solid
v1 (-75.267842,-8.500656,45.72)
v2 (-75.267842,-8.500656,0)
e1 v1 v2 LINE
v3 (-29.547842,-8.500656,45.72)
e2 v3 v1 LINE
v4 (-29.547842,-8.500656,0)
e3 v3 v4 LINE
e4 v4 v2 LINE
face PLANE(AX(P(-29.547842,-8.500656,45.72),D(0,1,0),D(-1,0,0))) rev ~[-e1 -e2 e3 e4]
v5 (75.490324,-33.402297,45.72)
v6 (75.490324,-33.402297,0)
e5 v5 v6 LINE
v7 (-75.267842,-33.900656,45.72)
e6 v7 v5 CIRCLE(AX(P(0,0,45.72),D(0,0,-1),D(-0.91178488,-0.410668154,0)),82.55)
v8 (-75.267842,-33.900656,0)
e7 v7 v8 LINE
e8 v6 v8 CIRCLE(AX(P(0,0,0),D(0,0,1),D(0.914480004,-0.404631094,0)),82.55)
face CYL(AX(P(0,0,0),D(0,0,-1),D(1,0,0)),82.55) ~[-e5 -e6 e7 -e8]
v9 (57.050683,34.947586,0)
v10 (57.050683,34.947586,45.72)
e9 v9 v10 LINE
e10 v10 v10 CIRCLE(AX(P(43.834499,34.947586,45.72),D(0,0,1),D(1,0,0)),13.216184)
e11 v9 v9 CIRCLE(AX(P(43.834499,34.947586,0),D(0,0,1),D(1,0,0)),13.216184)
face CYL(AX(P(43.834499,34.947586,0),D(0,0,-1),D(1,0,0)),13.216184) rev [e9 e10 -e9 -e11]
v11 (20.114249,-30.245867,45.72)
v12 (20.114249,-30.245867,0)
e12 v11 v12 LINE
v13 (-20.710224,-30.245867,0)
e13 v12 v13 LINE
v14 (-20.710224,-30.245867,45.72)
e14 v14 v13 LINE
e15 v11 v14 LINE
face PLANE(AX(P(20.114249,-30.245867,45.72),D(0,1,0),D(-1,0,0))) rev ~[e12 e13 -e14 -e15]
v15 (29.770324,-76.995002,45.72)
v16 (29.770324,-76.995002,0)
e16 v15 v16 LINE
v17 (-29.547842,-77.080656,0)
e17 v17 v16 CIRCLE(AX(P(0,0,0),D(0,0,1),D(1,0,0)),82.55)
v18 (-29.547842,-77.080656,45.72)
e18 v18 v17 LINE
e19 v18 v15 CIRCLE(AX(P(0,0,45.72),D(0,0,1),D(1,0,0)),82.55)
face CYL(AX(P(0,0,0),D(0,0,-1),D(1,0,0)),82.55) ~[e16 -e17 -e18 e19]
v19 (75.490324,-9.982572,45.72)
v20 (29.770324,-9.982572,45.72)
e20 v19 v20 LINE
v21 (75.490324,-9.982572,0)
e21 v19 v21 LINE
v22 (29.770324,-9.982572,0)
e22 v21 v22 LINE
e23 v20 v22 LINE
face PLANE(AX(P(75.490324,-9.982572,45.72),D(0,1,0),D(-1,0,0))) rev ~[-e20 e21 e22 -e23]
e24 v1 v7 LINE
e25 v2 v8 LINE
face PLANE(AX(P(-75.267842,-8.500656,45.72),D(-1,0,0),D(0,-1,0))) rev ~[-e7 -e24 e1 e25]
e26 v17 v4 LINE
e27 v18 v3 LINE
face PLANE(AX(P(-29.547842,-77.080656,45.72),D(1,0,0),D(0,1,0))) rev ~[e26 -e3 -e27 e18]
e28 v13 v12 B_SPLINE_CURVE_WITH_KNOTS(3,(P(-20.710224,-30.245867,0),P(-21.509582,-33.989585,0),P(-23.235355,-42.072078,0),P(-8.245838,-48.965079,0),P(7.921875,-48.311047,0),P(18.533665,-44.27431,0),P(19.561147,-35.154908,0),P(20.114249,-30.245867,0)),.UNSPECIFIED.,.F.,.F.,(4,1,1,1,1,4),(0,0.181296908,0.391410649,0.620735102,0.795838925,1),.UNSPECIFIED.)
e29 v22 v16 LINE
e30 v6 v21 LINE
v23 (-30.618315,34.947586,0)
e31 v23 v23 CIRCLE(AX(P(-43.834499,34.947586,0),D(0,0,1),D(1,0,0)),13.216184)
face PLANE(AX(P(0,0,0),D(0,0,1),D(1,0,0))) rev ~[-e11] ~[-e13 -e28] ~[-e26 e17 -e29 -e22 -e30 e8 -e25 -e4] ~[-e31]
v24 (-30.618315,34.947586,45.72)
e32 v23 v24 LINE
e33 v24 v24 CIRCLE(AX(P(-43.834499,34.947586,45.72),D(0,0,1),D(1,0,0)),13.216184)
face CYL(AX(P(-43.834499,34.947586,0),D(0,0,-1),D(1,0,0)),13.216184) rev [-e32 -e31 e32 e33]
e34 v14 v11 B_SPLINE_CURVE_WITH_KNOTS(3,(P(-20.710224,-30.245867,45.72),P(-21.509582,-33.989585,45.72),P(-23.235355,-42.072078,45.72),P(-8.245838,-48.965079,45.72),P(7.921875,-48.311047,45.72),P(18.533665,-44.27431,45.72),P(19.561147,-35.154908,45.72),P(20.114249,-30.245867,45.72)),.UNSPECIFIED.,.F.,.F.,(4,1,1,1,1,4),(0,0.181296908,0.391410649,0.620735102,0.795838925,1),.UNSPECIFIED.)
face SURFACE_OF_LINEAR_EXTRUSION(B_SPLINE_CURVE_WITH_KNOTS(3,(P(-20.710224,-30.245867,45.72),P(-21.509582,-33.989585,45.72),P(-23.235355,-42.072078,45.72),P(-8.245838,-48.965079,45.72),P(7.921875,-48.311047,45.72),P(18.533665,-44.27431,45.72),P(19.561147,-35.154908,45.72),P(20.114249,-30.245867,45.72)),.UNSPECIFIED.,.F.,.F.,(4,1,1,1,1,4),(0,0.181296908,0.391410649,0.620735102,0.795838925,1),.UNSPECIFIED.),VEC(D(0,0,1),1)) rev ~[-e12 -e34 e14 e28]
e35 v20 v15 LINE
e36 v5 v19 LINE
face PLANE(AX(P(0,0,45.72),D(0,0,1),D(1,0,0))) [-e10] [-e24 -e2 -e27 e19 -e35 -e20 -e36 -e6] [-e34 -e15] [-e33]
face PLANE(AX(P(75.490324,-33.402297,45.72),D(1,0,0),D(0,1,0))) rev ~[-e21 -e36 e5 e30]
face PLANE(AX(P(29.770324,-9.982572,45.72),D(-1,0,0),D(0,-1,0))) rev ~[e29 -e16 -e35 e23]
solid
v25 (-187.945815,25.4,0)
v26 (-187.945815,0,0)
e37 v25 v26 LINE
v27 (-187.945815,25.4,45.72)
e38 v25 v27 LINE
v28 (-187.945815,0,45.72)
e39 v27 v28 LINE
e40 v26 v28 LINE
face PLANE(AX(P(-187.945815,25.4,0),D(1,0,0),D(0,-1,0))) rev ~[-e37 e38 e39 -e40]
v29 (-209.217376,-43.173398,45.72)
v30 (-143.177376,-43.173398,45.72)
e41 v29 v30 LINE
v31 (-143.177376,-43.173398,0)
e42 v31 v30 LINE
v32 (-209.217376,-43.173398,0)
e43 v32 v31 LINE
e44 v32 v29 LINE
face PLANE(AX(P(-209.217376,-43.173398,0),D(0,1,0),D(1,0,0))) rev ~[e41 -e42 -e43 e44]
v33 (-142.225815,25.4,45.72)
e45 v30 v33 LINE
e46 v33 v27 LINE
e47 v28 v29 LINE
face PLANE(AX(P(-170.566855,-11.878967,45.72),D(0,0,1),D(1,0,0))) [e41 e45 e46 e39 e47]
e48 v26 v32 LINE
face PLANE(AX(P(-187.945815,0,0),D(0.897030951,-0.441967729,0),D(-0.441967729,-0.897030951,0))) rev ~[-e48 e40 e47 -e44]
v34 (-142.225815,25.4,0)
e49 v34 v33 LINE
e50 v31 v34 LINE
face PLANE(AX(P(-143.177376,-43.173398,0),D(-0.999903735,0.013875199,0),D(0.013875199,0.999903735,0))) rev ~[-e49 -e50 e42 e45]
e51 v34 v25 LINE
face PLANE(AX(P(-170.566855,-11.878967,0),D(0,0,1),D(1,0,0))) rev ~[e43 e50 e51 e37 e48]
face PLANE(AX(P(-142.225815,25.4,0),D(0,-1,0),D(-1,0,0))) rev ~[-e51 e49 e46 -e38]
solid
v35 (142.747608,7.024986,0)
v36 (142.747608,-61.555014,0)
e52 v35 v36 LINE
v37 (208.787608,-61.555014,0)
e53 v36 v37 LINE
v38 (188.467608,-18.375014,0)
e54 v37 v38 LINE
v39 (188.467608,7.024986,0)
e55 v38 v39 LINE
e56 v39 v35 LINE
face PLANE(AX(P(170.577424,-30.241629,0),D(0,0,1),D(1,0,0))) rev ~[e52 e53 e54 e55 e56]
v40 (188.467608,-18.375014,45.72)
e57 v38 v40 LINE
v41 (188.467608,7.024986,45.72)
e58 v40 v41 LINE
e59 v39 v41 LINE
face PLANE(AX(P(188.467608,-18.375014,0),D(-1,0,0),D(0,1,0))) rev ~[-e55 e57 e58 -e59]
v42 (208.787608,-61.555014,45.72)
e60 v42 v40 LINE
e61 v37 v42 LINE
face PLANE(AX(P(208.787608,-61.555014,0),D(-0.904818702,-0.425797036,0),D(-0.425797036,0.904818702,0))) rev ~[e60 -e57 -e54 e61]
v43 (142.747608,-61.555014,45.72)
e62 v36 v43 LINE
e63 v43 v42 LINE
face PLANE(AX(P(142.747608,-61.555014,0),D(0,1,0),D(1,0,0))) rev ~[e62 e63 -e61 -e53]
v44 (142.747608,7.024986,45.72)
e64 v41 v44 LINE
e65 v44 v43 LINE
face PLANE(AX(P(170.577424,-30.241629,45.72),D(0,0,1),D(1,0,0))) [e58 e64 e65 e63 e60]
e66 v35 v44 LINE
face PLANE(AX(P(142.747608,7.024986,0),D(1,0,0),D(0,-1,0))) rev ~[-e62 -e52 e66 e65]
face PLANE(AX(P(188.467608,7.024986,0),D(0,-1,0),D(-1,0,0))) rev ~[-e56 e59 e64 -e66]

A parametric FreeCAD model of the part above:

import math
import FreeCAD as App
import Part
import Sketcher
from FreeCAD import Vector
Q = App.Units.Quantity

doc = App.newDocument("Part")
params = doc.addObject("Spreadsheet::Sheet", "Params")
for row, (alias, value) in enumerate([
    ("sketch1_diameter", "6.5 in"),
    ("pad1_length", "1.8 in"),
    ("pocket1_length", "1.8 in"),
    ("sketch3_height", "1 in"),
    ("sketch3_radius", "3.25 in"),
    ("sketch3_width", "1.8 in"),
    ("sketch3_height2", "2.7 in"),
    ("pocket2_length", "1.8 in"),
    ("sketch4_height", "1 in"),
    ("sketch4_width", "1.8 in"),
    ("sketch4_width2", "2.6 in"),
    ("sketch4_length", "2.7 in"),
    ("pad2_length", "1.8 in"),
    ("sketch5_height", "1 in"),
    ("sketch5_width", "1.8 in"),
    ("sketch5_width2", "2.6 in"),
    ("sketch5_height2", "2.7 in"),
    ("pad3_length", "1.8 in"),
], start=1):
    params.set(f"A{row}", alias)
    params.set(f"B{row}", "=" + value)
    params.setAlias(f"B{row}", alias)

body = doc.addObject("PartDesign::Body", "Body")

sketch1 = body.newObject("Sketcher::SketchObject", "Sketch")
sketch1.AttachmentSupport = (doc.getObject("XY_Plane"), [""])
sketch1.MapMode = "FlatFace"
sketch1.addGeometry([
    Part.Circle(Vector(0, 0, 0), Vector(0, 0, 1), 82.55),
    Part.Circle(Vector(-43.834499, 34.947586, 0), Vector(0, 0, 1), 13.216184),
    Part.Circle(Vector(43.834499, 34.947586, 0), Vector(0, 0, 1), 13.216184),
], False)
sketch1.addConstraint([
    Sketcher.Constraint("Coincident", 0, 3, -1, 1),
    Sketcher.Constraint("Equal", 1, 2),
    Sketcher.Constraint("Symmetric", 1, 3, 2, 3, -2),
    Sketcher.Constraint("Diameter", 0, Q("6.5 in")),
    Sketcher.Constraint("Diameter", 1, 26.432368),
    Sketcher.Constraint("DistanceX", 1, 3, -1, 1, 43.834499),
    Sketcher.Constraint("DistanceY", -1, 1, 1, 3, 34.947586),
])
sketch1.setExpression("Constraints[3]", "Params.sketch1_diameter")
pad1 = body.newObject("PartDesign::Pad", "Pad")
pad1.Profile = sketch1
pad1.setExpression("Length", "Params.pad1_length")

sketch2 = body.newObject("Sketcher::SketchObject", "Sketch001")
sketch2.AttachmentSupport = (doc.getObject("XY_Plane"), [""])
sketch2.MapMode = "FlatFace"
sketch2.AttachmentOffset = App.Placement(Vector(0, 0, 1.8 * 25.4), App.Rotation())
sketch2.addGeometry([
    Part.LineSegment(Vector(20.114249, -30.245867, 0), Vector(-20.710224, -30.245867, 0)),
    Part.BSplineCurve([Vector(-20.710224, -30.245867, 0), Vector(-21.509582, -33.989585, 0), Vector(-23.235355, -42.072078, 0), Vector(-8.245838, -48.965079, 0), Vector(7.921875, -48.311047, 0), Vector(18.533665, -44.27431, 0), Vector(19.561147, -35.154908, 0), Vector(20.114249, -30.245867, 0)], [4, 1, 1, 1, 1, 4], [0, 0.181296908, 0.391410649, 0.620735102, 0.795838925, 1], False, 3, [1, 1, 1, 1, 1, 1, 1, 1], False),
], False)
sketch2.addConstraint([
    Sketcher.Constraint("Block", 1),
    Sketcher.Constraint("Coincident", 0, 1, 1, 2),
    Sketcher.Constraint("Coincident", 1, 1, 0, 2),
])
pocket1 = body.newObject("PartDesign::Pocket", "Pocket")
pocket1.Profile = sketch2
pocket1.setExpression("Length", "Params.pocket1_length")

sketch3 = body.newObject("Sketcher::SketchObject", "Sketch002")
sketch3.AttachmentSupport = (doc.getObject("XY_Plane"), [""])
sketch3.MapMode = "FlatFace"
sketch3.AttachmentOffset = App.Placement(Vector(0, 0, 1.8 * 25.4), App.Rotation())
sketch3.addGeometry([
    Part.LineSegment(Vector(-75.267842, -8.500656, 0), Vector(-75.267842, -33.900656, 0)),
    Part.ArcOfCircle(Part.Circle(Vector(0, 0, 0), Vector(0, 0, 1), 82.55), math.radians(-155.753186), math.radians(-110.97366)),
    Part.LineSegment(Vector(-29.547842, -77.080656, 0), Vector(-29.547842, -8.500656, 0)),
    Part.LineSegment(Vector(-29.547842, -8.500656, 0), Vector(-75.267842, -8.500656, 0)),
    Part.ArcOfCircle(Part.Circle(Vector(0, 0, 0), Vector(0, 0, 1), 82.55), math.radians(-68.860872), math.radians(-23.868012)),
    Part.LineSegment(Vector(75.490324, -33.402297, 0), Vector(75.490324, -9.982572, 0)),
    Part.LineSegment(Vector(75.490324, -9.982572, 0), Vector(29.770324, -9.982572, 0)),
    Part.LineSegment(Vector(29.770324, -9.982572, 0), Vector(29.770324, -76.995002, 0)),
], False)
sketch3.addConstraint([
    Sketcher.Constraint("Coincident", 0, 2, 1, 1),
    Sketcher.Constraint("Coincident", 1, 2, 2, 1),
    Sketcher.Constraint("Coincident", 2, 2, 3, 1),
    Sketcher.Constraint("Coincident", 3, 2, 0, 1),
    Sketcher.Constraint("Coincident", 4, 2, 5, 1),
    Sketcher.Constraint("Coincident", 5, 2, 6, 1),
    Sketcher.Constraint("Coincident", 6, 2, 7, 1),
    Sketcher.Constraint("Coincident", 7, 2, 4, 1),
    Sketcher.Constraint("Vertical", 0),
    Sketcher.Constraint("Vertical", 2),
    Sketcher.Constraint("Horizontal", 3),
    Sketcher.Constraint("Vertical", 5),
    Sketcher.Constraint("Horizontal", 6),
    Sketcher.Constraint("Vertical", 7),
    Sketcher.Constraint("Coincident", 1, 3, -1, 1),
    Sketcher.Constraint("Coincident", 4, 3, -1, 1),
    Sketcher.Constraint("Equal", 1, 4),
    Sketcher.Constraint("Equal", 3, 6),
    Sketcher.Constraint("DistanceY", 0, 2, 0, 1, Q("1 in")),
    Sketcher.Constraint("Radius", 1, Q("3.25 in")),
    Sketcher.Constraint("DistanceX", 3, 2, 3, 1, Q("1.8 in")),
    Sketcher.Constraint("DistanceY", 2, 1, 2, 2, Q("2.7 in")),
    Sketcher.Constraint("DistanceY", 7, 2, 7, 1, 67.01243),
    Sketcher.Constraint("DistanceY", 7, 2, -1, 1, 76.995002),
])
sketch3.setExpression("Constraints[18]", "Params.sketch3_height")
sketch3.setExpression("Constraints[19]", "Params.sketch3_radius")
sketch3.setExpression("Constraints[20]", "Params.sketch3_width")
sketch3.setExpression("Constraints[21]", "Params.sketch3_height2")
pocket2 = body.newObject("PartDesign::Pocket", "Pocket001")
pocket2.Profile = sketch3
pocket2.setExpression("Length", "Params.pocket2_length")
body2 = doc.addObject("PartDesign::Body", "Body001")

sketch4 = body2.newObject("Sketcher::SketchObject", "Sketch003")
sketch4.AttachmentSupport = (doc.getObject("XY_Plane001"), [""])
sketch4.MapMode = "FlatFace"
sketch4.addGeometry([
    Part.LineSegment(Vector(-142.225815, 25.4, 0), Vector(-187.945815, 25.4, 0)),
    Part.LineSegment(Vector(-187.945815, 25.4, 0), Vector(-187.945815, 0, 0)),
    Part.LineSegment(Vector(-187.945815, 0, 0), Vector(-209.217376, -43.173398, 0)),
    Part.LineSegment(Vector(-209.217376, -43.173398, 0), Vector(-143.177376, -43.173398, 0)),
    Part.LineSegment(Vector(-143.177376, -43.173398, 0), Vector(-142.225815, 25.4, 0)),
], False)
sketch4.addConstraint([
    Sketcher.Constraint("Coincident", 0, 2, 1, 1),
    Sketcher.Constraint("Coincident", 1, 2, 2, 1),
    Sketcher.Constraint("Coincident", 2, 2, 3, 1),
    Sketcher.Constraint("Coincident", 3, 2, 4, 1),
    Sketcher.Constraint("Coincident", 4, 2, 0, 1),
    Sketcher.Constraint("Horizontal", 0),
    Sketcher.Constraint("Vertical", 1),
    Sketcher.Constraint("Horizontal", 3),
    Sketcher.Constraint("PointOnObject", 1, 2, -1),
    Sketcher.Constraint("DistanceY", 1, 2, 1, 1, Q("1 in")),
    Sketcher.Constraint("DistanceX", 0, 2, 0, 1, Q("1.8 in")),
    Sketcher.Constraint("DistanceX", 3, 1, 3, 2, Q("2.6 in")),
    Sketcher.Constraint("Distance", 4, Q("2.7 in")),
    Sketcher.Constraint("DistanceY", 2, 2, -1, 1, 43.173398),
    Sketcher.Constraint("DistanceX", 0, 2, -1, 1, 187.945815),
])
sketch4.setExpression("Constraints[9]", "Params.sketch4_height")
sketch4.setExpression("Constraints[10]", "Params.sketch4_width")
sketch4.setExpression("Constraints[11]", "Params.sketch4_width2")
sketch4.setExpression("Constraints[12]", "Params.sketch4_length")
pad2 = body2.newObject("PartDesign::Pad", "Pad001")
pad2.Profile = sketch4
pad2.setExpression("Length", "Params.pad2_length")
body3 = doc.addObject("PartDesign::Body", "Body002")

sketch5 = body3.newObject("Sketcher::SketchObject", "Sketch004")
sketch5.AttachmentSupport = (doc.getObject("XY_Plane002"), [""])
sketch5.MapMode = "FlatFace"
sketch5.addGeometry([
    Part.LineSegment(Vector(188.467608, 7.024986, 0), Vector(142.747608, 7.024986, 0)),
    Part.LineSegment(Vector(142.747608, 7.024986, 0), Vector(142.747608, -61.555014, 0)),
    Part.LineSegment(Vector(142.747608, -61.555014, 0), Vector(208.787608, -61.555014, 0)),
    Part.LineSegment(Vector(208.787608, -61.555014, 0), Vector(188.467608, -18.375014, 0)),
    Part.LineSegment(Vector(188.467608, -18.375014, 0), Vector(188.467608, 7.024986, 0)),
], False)
sketch5.addConstraint([
    Sketcher.Constraint("Coincident", 0, 2, 1, 1),
    Sketcher.Constraint("Coincident", 1, 2, 2, 1),
    Sketcher.Constraint("Coincident", 2, 2, 3, 1),
    Sketcher.Constraint("Coincident", 3, 2, 4, 1),
    Sketcher.Constraint("Coincident", 4, 2, 0, 1),
    Sketcher.Constraint("Horizontal", 0),
    Sketcher.Constraint("Vertical", 1),
    Sketcher.Constraint("Horizontal", 2),
    Sketcher.Constraint("Vertical", 4),
    Sketcher.Constraint("DistanceY", 4, 1, 4, 2, Q("1 in")),
    Sketcher.Constraint("DistanceX", 0, 2, 0, 1, Q("1.8 in")),
    Sketcher.Constraint("DistanceX", 2, 1, 2, 2, Q("2.6 in")),
    Sketcher.Constraint("DistanceY", 1, 2, 1, 1, Q("2.7 in")),
    Sketcher.Constraint("DistanceX", -1, 1, 0, 2, 142.747608),
    Sketcher.Constraint("DistanceY", -1, 1, 0, 2, 7.024986),
])
sketch5.setExpression("Constraints[9]", "Params.sketch5_height")
sketch5.setExpression("Constraints[10]", "Params.sketch5_width")
sketch5.setExpression("Constraints[11]", "Params.sketch5_width2")
sketch5.setExpression("Constraints[12]", "Params.sketch5_height2")
pad3 = body3.newObject("PartDesign::Pad", "Pad002")
pad3.Profile = sketch5
pad3.setExpression("Length", "Params.pad3_length")

doc.recompute()
